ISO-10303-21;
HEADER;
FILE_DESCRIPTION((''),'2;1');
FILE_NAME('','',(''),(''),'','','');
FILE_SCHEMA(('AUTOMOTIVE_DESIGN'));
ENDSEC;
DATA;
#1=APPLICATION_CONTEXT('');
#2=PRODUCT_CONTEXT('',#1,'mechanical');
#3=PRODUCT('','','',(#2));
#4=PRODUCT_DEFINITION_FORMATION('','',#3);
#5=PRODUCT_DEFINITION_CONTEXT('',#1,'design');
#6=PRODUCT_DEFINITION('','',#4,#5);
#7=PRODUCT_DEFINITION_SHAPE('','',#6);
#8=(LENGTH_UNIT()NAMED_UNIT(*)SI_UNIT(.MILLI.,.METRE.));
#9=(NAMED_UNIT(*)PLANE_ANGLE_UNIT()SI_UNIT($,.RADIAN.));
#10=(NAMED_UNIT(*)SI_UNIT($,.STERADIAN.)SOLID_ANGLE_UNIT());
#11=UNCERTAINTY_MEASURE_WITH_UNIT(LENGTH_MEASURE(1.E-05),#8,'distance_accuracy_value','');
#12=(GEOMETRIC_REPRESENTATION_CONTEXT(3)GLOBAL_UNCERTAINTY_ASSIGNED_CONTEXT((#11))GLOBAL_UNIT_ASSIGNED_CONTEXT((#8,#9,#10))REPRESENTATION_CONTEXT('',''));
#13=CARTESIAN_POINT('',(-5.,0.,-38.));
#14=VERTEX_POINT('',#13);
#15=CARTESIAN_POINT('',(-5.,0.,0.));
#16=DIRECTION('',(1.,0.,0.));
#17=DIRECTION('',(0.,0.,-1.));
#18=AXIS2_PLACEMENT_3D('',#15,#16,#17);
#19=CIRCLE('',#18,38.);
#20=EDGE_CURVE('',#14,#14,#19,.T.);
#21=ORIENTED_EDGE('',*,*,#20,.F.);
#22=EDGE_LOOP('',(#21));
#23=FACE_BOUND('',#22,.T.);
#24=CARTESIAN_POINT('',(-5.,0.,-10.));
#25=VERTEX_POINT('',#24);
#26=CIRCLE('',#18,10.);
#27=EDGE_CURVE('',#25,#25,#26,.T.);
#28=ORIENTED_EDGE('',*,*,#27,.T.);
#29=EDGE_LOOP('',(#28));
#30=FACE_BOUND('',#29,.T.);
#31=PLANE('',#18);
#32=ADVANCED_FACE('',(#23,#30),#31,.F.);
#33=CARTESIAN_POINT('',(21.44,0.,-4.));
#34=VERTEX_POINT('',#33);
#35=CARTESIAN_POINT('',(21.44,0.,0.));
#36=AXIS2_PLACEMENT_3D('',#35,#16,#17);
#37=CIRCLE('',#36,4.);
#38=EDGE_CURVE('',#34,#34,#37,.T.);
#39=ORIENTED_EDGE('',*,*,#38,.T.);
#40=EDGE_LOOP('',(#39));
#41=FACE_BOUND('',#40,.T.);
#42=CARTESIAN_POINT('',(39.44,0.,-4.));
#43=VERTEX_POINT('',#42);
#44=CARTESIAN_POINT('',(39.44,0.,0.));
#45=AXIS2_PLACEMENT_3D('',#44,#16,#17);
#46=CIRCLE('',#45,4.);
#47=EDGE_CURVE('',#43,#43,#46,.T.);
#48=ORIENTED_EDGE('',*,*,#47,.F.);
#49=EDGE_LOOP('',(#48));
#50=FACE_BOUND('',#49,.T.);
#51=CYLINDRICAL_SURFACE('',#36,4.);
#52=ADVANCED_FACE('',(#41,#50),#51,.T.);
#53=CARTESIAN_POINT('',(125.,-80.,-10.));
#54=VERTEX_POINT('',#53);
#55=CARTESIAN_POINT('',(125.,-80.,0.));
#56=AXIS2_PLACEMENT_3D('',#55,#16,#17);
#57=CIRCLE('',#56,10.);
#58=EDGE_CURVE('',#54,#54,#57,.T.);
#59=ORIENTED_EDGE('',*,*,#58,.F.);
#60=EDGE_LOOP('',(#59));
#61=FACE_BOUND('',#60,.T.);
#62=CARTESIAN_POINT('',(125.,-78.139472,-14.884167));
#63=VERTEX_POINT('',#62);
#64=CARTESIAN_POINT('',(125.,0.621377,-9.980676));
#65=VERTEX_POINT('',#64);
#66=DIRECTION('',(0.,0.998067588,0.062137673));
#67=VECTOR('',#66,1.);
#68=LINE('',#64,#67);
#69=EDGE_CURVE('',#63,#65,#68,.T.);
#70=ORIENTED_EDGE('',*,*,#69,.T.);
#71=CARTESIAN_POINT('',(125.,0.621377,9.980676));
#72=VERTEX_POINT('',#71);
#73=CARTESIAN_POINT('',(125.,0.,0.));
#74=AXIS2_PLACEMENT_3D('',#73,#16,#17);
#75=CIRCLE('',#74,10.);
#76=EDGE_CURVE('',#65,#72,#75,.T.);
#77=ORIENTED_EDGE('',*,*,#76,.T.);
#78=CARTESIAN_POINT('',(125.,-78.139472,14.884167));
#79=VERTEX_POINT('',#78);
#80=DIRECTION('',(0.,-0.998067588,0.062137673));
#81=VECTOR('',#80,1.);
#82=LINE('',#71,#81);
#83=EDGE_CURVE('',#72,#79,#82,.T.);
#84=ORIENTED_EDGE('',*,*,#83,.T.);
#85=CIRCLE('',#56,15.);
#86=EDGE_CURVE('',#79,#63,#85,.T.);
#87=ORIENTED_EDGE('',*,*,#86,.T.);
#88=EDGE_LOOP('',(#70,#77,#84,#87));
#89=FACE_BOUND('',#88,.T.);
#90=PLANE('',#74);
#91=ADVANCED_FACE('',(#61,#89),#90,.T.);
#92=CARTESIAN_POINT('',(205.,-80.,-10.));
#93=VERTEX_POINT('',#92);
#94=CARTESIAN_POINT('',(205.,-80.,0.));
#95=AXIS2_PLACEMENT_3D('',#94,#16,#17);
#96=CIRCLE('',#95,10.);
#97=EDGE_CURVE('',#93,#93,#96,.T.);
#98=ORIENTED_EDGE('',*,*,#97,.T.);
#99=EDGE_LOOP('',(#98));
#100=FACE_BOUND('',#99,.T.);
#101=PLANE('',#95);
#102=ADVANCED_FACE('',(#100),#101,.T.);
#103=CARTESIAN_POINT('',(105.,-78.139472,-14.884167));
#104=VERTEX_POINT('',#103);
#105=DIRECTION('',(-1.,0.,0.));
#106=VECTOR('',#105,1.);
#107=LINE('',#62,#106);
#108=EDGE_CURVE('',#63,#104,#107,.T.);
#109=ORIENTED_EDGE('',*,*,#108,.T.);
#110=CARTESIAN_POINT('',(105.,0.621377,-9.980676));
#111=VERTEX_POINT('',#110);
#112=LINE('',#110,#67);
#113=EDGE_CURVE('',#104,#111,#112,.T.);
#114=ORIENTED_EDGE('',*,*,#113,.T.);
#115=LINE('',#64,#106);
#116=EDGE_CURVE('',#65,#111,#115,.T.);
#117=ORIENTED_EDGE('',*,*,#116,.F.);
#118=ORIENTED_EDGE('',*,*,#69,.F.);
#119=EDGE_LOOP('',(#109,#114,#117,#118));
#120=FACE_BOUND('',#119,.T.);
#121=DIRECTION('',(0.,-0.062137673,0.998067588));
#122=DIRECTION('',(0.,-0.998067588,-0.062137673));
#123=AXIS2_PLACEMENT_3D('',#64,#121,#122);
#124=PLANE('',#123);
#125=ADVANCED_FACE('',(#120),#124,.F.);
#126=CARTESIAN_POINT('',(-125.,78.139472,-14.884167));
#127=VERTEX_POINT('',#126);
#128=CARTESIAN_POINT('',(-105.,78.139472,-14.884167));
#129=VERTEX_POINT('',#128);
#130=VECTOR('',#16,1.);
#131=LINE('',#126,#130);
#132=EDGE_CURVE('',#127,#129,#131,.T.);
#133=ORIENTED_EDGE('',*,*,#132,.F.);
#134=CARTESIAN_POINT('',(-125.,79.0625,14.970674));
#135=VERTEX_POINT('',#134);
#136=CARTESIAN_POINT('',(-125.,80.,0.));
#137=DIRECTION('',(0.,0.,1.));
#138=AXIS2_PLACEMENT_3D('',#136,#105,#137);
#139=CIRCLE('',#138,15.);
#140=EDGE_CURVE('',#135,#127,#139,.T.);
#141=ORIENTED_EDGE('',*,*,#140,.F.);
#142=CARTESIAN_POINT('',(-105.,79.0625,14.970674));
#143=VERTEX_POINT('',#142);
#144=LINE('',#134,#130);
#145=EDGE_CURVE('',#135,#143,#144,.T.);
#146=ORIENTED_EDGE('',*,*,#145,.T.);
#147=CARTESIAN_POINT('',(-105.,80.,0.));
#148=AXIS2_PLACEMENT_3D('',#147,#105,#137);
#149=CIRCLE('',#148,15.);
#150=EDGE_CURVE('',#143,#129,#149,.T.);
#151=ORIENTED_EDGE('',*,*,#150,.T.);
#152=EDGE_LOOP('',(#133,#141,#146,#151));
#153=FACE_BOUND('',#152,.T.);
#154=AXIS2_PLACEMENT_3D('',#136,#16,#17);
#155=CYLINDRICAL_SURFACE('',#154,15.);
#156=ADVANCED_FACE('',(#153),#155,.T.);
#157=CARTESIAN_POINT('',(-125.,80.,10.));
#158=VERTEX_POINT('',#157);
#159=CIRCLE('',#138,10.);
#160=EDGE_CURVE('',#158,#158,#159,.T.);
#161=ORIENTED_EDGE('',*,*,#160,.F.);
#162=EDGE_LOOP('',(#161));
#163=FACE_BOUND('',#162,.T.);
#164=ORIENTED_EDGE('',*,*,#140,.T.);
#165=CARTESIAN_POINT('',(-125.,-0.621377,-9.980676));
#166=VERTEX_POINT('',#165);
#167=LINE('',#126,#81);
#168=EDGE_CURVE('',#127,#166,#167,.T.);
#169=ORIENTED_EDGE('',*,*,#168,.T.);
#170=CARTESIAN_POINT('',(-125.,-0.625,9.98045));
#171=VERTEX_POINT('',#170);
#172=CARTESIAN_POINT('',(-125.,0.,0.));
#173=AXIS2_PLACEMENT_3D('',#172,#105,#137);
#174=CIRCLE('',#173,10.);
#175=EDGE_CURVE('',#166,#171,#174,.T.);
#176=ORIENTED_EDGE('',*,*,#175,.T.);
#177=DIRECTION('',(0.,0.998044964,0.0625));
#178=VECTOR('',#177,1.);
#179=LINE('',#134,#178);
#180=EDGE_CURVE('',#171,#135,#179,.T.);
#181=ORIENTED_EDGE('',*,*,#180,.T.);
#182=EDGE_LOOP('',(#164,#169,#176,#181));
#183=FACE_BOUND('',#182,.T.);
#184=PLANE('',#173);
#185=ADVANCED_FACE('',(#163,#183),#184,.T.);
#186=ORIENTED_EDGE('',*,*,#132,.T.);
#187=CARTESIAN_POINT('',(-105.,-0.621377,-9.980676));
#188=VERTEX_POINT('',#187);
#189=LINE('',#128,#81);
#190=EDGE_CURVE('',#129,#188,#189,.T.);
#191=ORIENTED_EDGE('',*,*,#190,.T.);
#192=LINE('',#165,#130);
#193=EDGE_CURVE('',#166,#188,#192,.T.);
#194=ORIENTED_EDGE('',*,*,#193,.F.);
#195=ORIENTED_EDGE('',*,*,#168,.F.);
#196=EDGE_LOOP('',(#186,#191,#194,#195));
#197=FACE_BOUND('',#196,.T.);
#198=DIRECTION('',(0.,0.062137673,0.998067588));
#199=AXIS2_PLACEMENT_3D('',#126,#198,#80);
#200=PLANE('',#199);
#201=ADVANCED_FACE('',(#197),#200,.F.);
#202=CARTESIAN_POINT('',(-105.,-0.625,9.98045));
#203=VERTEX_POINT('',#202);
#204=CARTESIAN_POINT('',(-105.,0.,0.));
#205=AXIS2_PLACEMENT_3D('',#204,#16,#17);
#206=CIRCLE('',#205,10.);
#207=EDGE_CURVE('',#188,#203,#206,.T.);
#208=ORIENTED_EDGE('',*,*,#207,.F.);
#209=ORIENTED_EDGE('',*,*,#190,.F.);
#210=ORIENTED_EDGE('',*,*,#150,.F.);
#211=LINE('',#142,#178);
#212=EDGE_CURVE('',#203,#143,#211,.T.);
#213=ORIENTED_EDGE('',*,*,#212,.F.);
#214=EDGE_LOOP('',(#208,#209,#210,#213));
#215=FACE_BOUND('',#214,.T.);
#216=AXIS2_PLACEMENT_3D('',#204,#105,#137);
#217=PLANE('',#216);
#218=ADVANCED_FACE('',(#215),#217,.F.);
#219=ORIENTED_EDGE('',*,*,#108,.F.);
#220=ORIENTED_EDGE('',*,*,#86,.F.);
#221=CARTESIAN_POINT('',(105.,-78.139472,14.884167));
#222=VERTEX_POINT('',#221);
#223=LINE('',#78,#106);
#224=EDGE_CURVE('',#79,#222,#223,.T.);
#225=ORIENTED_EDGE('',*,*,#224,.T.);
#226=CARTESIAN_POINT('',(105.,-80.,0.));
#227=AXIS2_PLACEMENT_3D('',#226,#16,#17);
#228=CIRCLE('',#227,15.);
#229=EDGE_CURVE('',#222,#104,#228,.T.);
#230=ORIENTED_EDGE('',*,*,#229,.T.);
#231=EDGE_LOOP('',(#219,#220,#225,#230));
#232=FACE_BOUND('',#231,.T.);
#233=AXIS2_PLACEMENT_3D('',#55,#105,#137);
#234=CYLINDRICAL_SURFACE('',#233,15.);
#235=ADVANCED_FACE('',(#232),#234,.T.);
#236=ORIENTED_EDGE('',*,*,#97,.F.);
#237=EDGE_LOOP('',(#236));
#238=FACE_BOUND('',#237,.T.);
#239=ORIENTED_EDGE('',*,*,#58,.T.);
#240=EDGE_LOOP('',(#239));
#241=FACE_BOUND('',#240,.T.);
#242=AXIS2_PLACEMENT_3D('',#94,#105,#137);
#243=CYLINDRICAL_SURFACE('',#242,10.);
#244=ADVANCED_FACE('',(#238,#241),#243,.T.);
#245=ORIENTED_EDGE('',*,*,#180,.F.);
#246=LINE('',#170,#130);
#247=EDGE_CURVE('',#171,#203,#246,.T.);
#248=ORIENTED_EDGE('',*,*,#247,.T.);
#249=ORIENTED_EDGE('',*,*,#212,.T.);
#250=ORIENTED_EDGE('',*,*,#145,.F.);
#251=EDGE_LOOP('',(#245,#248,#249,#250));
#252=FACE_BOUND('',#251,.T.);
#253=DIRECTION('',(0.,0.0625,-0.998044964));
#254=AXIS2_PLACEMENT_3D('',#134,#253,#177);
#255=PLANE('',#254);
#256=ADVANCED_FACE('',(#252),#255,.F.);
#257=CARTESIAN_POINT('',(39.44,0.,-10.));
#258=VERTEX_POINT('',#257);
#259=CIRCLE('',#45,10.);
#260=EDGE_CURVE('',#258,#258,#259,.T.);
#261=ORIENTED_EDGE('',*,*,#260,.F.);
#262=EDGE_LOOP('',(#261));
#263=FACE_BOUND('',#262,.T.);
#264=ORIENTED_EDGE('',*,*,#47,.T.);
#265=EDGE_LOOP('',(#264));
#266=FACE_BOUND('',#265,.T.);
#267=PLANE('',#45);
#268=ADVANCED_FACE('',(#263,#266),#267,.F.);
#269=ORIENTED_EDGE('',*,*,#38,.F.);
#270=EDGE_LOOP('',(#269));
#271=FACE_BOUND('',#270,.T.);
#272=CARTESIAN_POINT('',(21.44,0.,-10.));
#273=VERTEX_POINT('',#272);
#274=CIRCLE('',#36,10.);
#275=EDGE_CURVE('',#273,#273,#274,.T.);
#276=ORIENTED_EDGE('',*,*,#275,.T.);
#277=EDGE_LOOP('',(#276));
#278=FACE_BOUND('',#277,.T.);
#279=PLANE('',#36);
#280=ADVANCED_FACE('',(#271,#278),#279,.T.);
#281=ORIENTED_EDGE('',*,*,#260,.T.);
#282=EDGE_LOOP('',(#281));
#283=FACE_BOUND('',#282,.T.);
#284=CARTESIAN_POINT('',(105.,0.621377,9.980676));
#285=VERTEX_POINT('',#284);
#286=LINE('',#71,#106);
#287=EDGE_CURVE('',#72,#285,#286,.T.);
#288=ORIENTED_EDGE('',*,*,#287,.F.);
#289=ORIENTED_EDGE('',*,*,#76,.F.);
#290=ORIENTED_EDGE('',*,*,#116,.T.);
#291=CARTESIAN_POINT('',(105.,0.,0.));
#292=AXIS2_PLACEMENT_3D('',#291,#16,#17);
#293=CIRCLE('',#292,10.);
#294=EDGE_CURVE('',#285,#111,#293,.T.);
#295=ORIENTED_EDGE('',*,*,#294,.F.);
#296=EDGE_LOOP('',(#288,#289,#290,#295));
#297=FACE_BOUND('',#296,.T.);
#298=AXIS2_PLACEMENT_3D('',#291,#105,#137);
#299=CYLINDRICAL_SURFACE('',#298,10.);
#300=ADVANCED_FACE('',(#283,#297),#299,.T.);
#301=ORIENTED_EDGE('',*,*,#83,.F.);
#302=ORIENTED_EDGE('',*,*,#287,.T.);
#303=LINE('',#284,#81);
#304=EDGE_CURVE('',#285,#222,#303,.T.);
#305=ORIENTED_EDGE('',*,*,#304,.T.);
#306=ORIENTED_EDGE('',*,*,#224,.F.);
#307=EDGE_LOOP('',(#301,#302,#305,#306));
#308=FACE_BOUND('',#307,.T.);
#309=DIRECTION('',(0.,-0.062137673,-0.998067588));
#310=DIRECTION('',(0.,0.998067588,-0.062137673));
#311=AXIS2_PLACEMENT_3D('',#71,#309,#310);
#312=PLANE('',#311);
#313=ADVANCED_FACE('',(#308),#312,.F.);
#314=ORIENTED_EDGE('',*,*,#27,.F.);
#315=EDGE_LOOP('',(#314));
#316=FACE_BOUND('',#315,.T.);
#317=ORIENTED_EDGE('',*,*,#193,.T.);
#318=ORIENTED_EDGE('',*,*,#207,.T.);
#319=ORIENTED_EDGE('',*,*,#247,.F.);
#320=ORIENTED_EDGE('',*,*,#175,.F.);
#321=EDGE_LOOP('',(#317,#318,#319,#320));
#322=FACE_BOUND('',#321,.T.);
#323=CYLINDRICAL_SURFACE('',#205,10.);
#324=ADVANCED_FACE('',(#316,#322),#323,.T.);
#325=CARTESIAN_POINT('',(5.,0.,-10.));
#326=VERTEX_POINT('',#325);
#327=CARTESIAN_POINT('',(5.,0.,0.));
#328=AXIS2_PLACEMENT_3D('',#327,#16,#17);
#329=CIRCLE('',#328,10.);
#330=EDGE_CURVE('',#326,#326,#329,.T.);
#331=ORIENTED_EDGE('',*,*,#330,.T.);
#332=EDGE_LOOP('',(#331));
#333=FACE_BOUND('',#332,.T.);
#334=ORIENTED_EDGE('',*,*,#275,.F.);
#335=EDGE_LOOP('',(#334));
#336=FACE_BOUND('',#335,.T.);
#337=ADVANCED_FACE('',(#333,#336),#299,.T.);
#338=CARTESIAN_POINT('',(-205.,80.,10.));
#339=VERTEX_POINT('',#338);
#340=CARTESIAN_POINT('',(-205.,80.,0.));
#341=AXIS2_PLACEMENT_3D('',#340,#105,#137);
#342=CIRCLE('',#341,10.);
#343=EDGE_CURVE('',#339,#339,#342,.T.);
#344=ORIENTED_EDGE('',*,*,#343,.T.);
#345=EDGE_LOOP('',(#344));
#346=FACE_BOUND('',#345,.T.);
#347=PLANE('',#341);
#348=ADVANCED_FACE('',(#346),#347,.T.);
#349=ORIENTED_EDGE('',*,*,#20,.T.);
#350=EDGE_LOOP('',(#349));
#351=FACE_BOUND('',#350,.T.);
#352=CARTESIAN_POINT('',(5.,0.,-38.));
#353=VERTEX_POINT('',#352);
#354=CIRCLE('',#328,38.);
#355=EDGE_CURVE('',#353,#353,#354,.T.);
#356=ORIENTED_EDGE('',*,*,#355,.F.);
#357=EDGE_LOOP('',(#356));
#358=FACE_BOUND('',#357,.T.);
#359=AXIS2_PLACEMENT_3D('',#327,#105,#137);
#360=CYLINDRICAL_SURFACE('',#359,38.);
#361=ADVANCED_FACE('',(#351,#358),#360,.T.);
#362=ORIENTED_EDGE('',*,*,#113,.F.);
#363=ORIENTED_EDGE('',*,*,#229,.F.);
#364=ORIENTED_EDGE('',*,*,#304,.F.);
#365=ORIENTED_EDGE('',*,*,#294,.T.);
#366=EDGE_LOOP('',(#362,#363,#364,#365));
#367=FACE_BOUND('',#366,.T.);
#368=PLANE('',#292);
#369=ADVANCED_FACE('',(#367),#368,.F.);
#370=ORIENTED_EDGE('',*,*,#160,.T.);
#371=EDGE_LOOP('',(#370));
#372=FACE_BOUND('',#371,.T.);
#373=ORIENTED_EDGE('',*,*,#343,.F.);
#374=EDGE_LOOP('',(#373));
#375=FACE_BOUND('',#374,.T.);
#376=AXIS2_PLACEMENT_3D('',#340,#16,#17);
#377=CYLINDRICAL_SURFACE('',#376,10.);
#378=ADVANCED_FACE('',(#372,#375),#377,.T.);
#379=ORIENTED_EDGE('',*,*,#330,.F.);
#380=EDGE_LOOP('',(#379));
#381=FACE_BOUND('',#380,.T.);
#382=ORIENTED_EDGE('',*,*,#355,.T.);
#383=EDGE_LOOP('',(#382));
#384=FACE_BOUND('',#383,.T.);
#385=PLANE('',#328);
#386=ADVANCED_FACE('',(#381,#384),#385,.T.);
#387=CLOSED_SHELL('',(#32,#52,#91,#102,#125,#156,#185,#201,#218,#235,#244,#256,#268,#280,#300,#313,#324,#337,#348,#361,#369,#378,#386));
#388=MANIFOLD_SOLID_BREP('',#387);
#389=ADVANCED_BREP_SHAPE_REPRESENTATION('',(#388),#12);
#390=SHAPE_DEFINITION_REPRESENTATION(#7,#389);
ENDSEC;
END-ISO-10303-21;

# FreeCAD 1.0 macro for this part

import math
import FreeCAD as App
import Part
import Sketcher
from FreeCAD import Vector

doc = App.newDocument("Part")
body = doc.addObject("PartDesign::Body", "Body")

# Sketch on YZ plane
sketch1 = body.newObject("Sketcher::SketchObject", "Sketch")
sketch1.AttachmentSupport = (doc.getObject("YZ_Plane"), [""])
sketch1.MapMode = "FlatFace"
sketch1.addGeometry(Part.Circle(Vector(0, 0, 0), Vector(0, 0, 1), 38), False)
sketch1.addConstraint([
    Sketcher.Constraint("Coincident", 0, 3, -1, 1),
    Sketcher.Constraint("Diameter", 0, 76.0),
])
pad1 = body.newObject("PartDesign::Pad", "Pad")
pad1.Profile = sketch1
pad1.Length = 10
pad1.Midplane = True

# Sketch on YZ plane
sketch2 = body.newObject("Sketcher::SketchObject", "Sketch001")
sketch2.AttachmentSupport = (doc.getObject("YZ_Plane"), [""])
sketch2.MapMode = "FlatFace"
sketch2.AttachmentOffset = App.Placement(Vector(0, 0, 5), App.Rotation())
sketch2.addGeometry(Part.Circle(Vector(0, 0, 0), Vector(0, 0, 1), 10), False)
sketch2.addConstraint([
    Sketcher.Constraint("Coincident", 0, 3, -1, 1),
    Sketcher.Constraint("Diameter", 0, 20.0),
])
pad2 = body.newObject("PartDesign::Pad", "Pad001")
pad2.Profile = sketch2
pad2.Length = 100

# Sketch on YZ plane
sketch3 = body.newObject("Sketcher::SketchObject", "Sketch002")
sketch3.AttachmentSupport = (doc.getObject("YZ_Plane"), [""])
sketch3.MapMode = "FlatFace"
sketch3.AttachmentOffset = App.Placement(Vector(0, 0, 105), App.Rotation())
sketch3.addGeometry([
    Part.LineSegment(Vector(1, 10, 0), Vector(-78, 15, 0)),
    Part.ArcOfCircle(Part.Circle(Vector(-80, 0, 0), Vector(0, 0, 1), 15), math.radians(83), math.radians(277)),
    Part.LineSegment(Vector(-78, -15, 0), Vector(1, -10, 0)),
    Part.ArcOfCircle(Part.Circle(Vector(0, 0, 0), Vector(0, 0, 1), 10), math.radians(-86), math.radians(86)),
], False)
sketch3.addConstraint([
    Sketcher.Constraint("Coincident", 0, 2, 1, 1),
    Sketcher.Constraint("Coincident", 1, 2, 2, 1),
    Sketcher.Constraint("Tangent", 2, 2, 3, 1),
    Sketcher.Constraint("Tangent", 3, 2, 0, 1),
    Sketcher.Constraint("Coincident", 3, 3, -1, 1),
    Sketcher.Constraint("Symmetric", 0, 2, 1, 2, -1),
    Sketcher.Constraint("Radius", 1, 15.0),
    Sketcher.Constraint("Radius", 3, 10.0),
    Sketcher.Constraint("DistanceX", 1, 3, -1, 1, 80.0),
    Sketcher.Constraint("Distance", 0, 78.913342),
])
pad3 = body.newObject("PartDesign::Pad", "Pad002")
pad3.Profile = sketch3
pad3.Length = 20

# Sketch on YZ plane
sketch4 = body.newObject("Sketcher::SketchObject", "Sketch003")
sketch4.AttachmentSupport = (doc.getObject("YZ_Plane"), [""])
sketch4.MapMode = "FlatFace"
sketch4.AttachmentOffset = App.Placement(Vector(0, 0, 125), App.Rotation())
sketch4.addGeometry(Part.Circle(Vector(-80, 0, 0), Vector(0, 0, 1), 10), False)
sketch4.addConstraint([
    Sketcher.Constraint("PointOnObject", 0, 3, -1),
    Sketcher.Constraint("Diameter", 0, 20.0),
    Sketcher.Constraint("DistanceX", 0, 3, -1, 1, 80.0),
])
pad4 = body.newObject("PartDesign::Pad", "Pad003")
pad4.Profile = sketch4
pad4.Length = 80
doc.recompute()

mirrored = body.newObject("PartDesign::Mirrored", "Mirrored")
mirrored.Originals = [pad2]
mirrored.MirrorPlane = (doc.getObject("YZ_Plane"), [""])
body.Tip = mirrored

# Sketch on YZ plane
sketch5 = body.newObject("Sketcher::SketchObject", "Sketch004")
sketch5.AttachmentSupport = (doc.getObject("YZ_Plane"), [""])
sketch5.MapMode = "FlatFace"
sketch5.AttachmentOffset = App.Placement(Vector(0, 0, -105), App.Rotation())
sketch5.addGeometry([
    Part.LineSegment(Vector(78, -15, 0), Vector(-1, -10, 0)),
    Part.ArcOfCircle(Part.Circle(Vector(0, 0, 0), Vector(0, 0, 1), 10), math.radians(94), math.radians(266)),
    Part.LineSegment(Vector(-1, 10, 0), Vector(79, 15, 0)),
    Part.ArcOfCircle(Part.Circle(Vector(80, 0, 0), Vector(0, 0, 1), 15), math.radians(-97), math.radians(94)),
], False)
sketch5.addConstraint([
    Sketcher.Constraint("Tangent", 0, 2, 1, 2),
    Sketcher.Constraint("Tangent", 1, 1, 2, 1),
    Sketcher.Constraint("Tangent", 2, 2, 3, 2),
    Sketcher.Constraint("Coincident", 3, 1, 0, 1),
    Sketcher.Constraint("Coincident", 1, 3, -1, 1),
    Sketcher.Constraint("PointOnObject", 3, 3, -1),
    Sketcher.Constraint("Radius", 1, 10.0),
    Sketcher.Constraint("Radius", 3, 15.0),
    Sketcher.Constraint("DistanceX", -1, 1, 3, 3, 80.0),
    Sketcher.Constraint("Distance", 0, 78.913342),
])
pad5 = body.newObject("PartDesign::Pad", "Pad004")
pad5.Profile = sketch5
pad5.Length = 20
pad5.Reversed = True

# Sketch on YZ plane
sketch6 = body.newObject("Sketcher::SketchObject", "Sketch005")
sketch6.AttachmentSupport = (doc.getObject("YZ_Plane"), [""])
sketch6.MapMode = "FlatFace"
sketch6.AttachmentOffset = App.Placement(Vector(0, 0, -125), App.Rotation())
sketch6.addGeometry(Part.Circle(Vector(80, 0, 0), Vector(0, 0, 1), 10), False)
sketch6.addConstraint([
    Sketcher.Constraint("PointOnObject", 0, 3, -1),
    Sketcher.Constraint("Diameter", 0, 20.0),
    Sketcher.Constraint("DistanceX", -1, 1, 0, 3, 80.0),
])
pad6 = body.newObject("PartDesign::Pad", "Pad005")
pad6.Profile = sketch6
pad6.Length = 80
pad6.Reversed = True

# Sketch on YZ plane
sketch7 = body.newObject("Sketcher::SketchObject", "Sketch006")
sketch7.AttachmentSupport = (doc.getObject("YZ_Plane"), [""])
sketch7.MapMode = "FlatFace"
sketch7.AttachmentOffset = App.Placement(Vector(0, 0, 39.44), App.Rotation())
sketch7.addGeometry([
    Part.Circle(Vector(0, 0, 0), Vector(0, 0, 1), 10),
    Part.Circle(Vector(0, 0, 0), Vector(0, 0, 1), 4),
], False)
sketch7.addConstraint([
    Sketcher.Constraint("Coincident", 0, 3, -1, 1),
    Sketcher.Constraint("Coincident", 1, 3, -1, 1),
    Sketcher.Constraint("Diameter", 0, 20.0),
    Sketcher.Constraint("Diameter", 1, 8.0),
])
pocket1 = body.newObject("PartDesign::Pocket", "Pocket")
pocket1.Profile = sketch7
pocket1.Length = 18

doc.recompute()
